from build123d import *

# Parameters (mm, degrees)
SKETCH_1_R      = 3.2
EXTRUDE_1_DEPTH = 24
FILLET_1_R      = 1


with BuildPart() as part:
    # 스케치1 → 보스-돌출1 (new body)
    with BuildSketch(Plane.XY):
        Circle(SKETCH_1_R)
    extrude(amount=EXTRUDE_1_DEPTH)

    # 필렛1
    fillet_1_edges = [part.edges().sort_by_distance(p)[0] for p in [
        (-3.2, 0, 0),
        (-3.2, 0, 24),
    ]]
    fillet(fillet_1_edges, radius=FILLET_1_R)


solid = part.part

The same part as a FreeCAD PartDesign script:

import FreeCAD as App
import Part
import Sketcher


def edges_at(feature, points):
    """Names of the edges that pass closest to the given points."""
    edges = feature.Shape.Edges
    near = lambda p: min(range(len(edges)), key=lambda i: edges[i].distToShape(Part.Vertex(*p))[0])
    return sorted({f"Edge{near(p) + 1}" for p in points})

doc = App.newDocument("Part")
body = doc.addObject("PartDesign::Body", "Body")

# Sketch on XY plane
sketch1 = body.newObject("Sketcher::SketchObject", "Sketch")
sketch1.AttachmentSupport = (doc.getObject("XY_Plane"), [""])
sketch1.MapMode = "FlatFace"
sketch1.addGeometry(Part.Circle(App.Vector(0, 0, 0), App.Vector(0, 0, 1), 3.2), False)
sketch1.addConstraint(Sketcher.Constraint("Coincident", 0, 3, -1, 1))
sketch1.addConstraint(Sketcher.Constraint("Diameter", 0, 6.4))
pad1 = body.newObject("PartDesign::Pad", "Pad")
pad1.Profile = sketch1
pad1.Length = 24
doc.recompute()

fillet = body.newObject("PartDesign::Fillet", "Fillet")
fillet.Base = (pad1, edges_at(pad1, [(-3.2, 0, 0), (-3.2, 0, 24)]))
fillet.Radius = 1

doc.recompute()
